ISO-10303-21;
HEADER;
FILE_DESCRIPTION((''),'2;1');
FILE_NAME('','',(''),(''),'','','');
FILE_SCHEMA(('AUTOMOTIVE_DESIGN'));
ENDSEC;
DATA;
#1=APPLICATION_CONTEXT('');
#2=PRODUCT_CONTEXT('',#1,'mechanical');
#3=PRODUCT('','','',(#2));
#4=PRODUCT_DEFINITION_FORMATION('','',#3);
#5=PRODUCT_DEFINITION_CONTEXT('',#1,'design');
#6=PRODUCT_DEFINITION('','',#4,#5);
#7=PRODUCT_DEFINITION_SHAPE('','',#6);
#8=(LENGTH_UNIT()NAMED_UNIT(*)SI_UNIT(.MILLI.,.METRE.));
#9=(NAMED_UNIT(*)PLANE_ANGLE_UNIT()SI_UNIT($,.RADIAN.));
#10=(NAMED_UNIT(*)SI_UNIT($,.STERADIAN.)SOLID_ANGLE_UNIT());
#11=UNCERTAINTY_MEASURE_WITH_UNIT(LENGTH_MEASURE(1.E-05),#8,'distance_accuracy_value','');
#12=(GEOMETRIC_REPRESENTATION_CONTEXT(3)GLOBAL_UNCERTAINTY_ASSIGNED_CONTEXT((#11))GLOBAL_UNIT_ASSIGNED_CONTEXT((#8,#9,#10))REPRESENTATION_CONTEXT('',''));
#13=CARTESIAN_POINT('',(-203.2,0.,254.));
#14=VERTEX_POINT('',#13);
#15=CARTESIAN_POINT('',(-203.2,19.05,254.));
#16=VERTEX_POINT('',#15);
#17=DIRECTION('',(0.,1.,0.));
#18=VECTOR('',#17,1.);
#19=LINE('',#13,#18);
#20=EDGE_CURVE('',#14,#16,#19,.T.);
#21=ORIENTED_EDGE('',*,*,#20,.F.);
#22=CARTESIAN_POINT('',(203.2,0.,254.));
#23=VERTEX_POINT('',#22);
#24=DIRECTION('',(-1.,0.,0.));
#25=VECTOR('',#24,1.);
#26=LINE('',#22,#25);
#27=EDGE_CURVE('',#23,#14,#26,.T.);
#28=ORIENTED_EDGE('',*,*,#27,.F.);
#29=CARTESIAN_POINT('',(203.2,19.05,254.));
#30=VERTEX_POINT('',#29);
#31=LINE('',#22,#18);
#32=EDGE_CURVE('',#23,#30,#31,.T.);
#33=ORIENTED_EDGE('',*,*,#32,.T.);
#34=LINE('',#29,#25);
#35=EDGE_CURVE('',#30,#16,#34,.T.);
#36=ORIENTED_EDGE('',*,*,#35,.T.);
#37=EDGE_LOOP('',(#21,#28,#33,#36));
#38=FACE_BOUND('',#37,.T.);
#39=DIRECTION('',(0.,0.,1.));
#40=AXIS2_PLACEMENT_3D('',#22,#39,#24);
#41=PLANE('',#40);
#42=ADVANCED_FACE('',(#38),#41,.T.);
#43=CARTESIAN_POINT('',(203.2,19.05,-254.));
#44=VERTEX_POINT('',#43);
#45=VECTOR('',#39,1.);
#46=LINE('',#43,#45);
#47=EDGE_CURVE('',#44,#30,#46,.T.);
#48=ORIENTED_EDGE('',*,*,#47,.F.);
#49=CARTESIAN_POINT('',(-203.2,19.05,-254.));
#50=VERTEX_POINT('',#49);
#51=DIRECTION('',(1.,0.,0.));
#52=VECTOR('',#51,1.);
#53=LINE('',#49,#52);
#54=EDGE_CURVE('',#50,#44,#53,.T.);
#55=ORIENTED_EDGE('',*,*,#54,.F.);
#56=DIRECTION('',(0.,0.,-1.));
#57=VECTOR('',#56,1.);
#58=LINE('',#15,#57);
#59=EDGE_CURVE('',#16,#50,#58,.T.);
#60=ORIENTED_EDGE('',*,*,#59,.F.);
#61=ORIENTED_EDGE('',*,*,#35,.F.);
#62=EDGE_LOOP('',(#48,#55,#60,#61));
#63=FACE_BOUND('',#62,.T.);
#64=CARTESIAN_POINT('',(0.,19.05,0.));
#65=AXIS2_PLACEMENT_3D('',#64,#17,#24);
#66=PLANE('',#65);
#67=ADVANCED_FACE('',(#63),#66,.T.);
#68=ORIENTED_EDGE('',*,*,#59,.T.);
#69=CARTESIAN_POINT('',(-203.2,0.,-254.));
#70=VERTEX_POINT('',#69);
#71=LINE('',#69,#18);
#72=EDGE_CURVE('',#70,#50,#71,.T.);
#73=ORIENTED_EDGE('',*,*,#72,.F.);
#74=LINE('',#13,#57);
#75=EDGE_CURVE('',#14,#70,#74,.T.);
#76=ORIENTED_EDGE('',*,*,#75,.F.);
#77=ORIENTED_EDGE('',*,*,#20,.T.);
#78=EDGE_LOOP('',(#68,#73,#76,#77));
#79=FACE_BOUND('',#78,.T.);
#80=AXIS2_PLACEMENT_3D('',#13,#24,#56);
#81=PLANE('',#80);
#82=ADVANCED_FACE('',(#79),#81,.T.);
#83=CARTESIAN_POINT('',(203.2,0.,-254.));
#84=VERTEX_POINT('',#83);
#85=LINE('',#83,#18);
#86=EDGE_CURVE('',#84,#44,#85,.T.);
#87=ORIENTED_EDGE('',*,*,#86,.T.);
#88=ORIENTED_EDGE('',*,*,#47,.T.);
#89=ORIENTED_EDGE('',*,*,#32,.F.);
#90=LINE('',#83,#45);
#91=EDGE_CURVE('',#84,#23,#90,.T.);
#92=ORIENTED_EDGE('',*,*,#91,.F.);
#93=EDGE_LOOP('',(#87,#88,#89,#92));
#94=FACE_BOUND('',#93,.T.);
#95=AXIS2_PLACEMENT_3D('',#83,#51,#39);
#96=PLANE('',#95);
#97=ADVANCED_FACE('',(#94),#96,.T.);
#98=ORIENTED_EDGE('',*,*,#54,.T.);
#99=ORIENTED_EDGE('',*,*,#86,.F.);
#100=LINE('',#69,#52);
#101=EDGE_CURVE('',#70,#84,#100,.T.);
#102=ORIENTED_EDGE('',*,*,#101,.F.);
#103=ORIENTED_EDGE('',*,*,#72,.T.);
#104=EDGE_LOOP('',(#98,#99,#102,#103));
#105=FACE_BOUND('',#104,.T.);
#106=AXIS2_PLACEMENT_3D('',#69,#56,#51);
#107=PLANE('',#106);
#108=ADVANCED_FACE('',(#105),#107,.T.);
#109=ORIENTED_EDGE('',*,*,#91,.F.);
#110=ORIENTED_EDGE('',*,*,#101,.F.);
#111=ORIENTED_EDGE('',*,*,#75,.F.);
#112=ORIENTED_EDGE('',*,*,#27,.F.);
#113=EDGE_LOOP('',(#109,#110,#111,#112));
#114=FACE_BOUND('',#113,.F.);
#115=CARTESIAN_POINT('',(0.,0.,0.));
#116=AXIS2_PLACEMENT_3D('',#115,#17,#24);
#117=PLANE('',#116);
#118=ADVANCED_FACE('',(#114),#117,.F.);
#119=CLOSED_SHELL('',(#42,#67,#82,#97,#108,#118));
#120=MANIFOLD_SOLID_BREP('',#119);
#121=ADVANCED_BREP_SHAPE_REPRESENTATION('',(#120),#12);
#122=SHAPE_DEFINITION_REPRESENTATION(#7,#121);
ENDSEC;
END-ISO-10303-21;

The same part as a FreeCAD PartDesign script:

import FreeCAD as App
import Part
import Sketcher
from FreeCAD import Vector
Q = App.Units.Quantity

doc = App.newDocument("Part")
params = doc.addObject("Spreadsheet::Sheet", "Params")
for row, (alias, value) in enumerate([
    ("sketch1_width", "16 in"),
    ("sketch1_height", "20 in"),
    ("pad1_length", "0.75 in"),
], start=1):
    params.set(f"A{row}", alias)
    params.set(f"B{row}", "=" + value)
    params.setAlias(f"B{row}", alias)

body = doc.addObject("PartDesign::Body", "Body")

sketch1 = body.newObject("Sketcher::SketchObject", "Sketch")
sketch1.AttachmentSupport = (doc.getObject("XZ_Plane"), [""])
sketch1.MapMode = "FlatFace"
sketch1.addGeometry(Part.LineSegment(Vector(-203, 254, 0), Vector(203, 254, 0)), False)
sketch1.addGeometry(Part.LineSegment(Vector(203, 254, 0), Vector(203, -254, 0)), False)
sketch1.addGeometry(Part.LineSegment(Vector(203, -254, 0), Vector(-203, -254, 0)), False)
sketch1.addGeometry(Part.LineSegment(Vector(-203, -254, 0), Vector(-203, 254, 0)), False)
sketch1.addConstraint(Sketcher.Constraint("Coincident", 0, 2, 1, 1))
sketch1.addConstraint(Sketcher.Constraint("Coincident", 1, 2, 2, 1))
sketch1.addConstraint(Sketcher.Constraint("Coincident", 2, 2, 3, 1))
sketch1.addConstraint(Sketcher.Constraint("Coincident", 3, 2, 0, 1))
sketch1.addConstraint(Sketcher.Constraint("Horizontal", 0))
sketch1.addConstraint(Sketcher.Constraint("Vertical", 1))
sketch1.addConstraint(Sketcher.Constraint("Horizontal", 2))
sketch1.addConstraint(Sketcher.Constraint("Vertical", 3))
sketch1.addConstraint(Sketcher.Constraint("Symmetric", 0, 2, 2, 2, -1, 1))
sketch1.addConstraint(Sketcher.Constraint("DistanceX", 0, 1, 0, 2, Q("16 in")))
sketch1.addConstraint(Sketcher.Constraint("DistanceY", 1, 2, 1, 1, Q("20 in")))
sketch1.setExpression("Constraints[9]", "Params.sketch1_width")
sketch1.setExpression("Constraints[10]", "Params.sketch1_height")
pad1 = body.newObject("PartDesign::Pad", "Pad")
pad1.Profile = sketch1
pad1.setExpression("Length", "Params.pad1_length")
pad1.Reversed = True

doc.recompute()
